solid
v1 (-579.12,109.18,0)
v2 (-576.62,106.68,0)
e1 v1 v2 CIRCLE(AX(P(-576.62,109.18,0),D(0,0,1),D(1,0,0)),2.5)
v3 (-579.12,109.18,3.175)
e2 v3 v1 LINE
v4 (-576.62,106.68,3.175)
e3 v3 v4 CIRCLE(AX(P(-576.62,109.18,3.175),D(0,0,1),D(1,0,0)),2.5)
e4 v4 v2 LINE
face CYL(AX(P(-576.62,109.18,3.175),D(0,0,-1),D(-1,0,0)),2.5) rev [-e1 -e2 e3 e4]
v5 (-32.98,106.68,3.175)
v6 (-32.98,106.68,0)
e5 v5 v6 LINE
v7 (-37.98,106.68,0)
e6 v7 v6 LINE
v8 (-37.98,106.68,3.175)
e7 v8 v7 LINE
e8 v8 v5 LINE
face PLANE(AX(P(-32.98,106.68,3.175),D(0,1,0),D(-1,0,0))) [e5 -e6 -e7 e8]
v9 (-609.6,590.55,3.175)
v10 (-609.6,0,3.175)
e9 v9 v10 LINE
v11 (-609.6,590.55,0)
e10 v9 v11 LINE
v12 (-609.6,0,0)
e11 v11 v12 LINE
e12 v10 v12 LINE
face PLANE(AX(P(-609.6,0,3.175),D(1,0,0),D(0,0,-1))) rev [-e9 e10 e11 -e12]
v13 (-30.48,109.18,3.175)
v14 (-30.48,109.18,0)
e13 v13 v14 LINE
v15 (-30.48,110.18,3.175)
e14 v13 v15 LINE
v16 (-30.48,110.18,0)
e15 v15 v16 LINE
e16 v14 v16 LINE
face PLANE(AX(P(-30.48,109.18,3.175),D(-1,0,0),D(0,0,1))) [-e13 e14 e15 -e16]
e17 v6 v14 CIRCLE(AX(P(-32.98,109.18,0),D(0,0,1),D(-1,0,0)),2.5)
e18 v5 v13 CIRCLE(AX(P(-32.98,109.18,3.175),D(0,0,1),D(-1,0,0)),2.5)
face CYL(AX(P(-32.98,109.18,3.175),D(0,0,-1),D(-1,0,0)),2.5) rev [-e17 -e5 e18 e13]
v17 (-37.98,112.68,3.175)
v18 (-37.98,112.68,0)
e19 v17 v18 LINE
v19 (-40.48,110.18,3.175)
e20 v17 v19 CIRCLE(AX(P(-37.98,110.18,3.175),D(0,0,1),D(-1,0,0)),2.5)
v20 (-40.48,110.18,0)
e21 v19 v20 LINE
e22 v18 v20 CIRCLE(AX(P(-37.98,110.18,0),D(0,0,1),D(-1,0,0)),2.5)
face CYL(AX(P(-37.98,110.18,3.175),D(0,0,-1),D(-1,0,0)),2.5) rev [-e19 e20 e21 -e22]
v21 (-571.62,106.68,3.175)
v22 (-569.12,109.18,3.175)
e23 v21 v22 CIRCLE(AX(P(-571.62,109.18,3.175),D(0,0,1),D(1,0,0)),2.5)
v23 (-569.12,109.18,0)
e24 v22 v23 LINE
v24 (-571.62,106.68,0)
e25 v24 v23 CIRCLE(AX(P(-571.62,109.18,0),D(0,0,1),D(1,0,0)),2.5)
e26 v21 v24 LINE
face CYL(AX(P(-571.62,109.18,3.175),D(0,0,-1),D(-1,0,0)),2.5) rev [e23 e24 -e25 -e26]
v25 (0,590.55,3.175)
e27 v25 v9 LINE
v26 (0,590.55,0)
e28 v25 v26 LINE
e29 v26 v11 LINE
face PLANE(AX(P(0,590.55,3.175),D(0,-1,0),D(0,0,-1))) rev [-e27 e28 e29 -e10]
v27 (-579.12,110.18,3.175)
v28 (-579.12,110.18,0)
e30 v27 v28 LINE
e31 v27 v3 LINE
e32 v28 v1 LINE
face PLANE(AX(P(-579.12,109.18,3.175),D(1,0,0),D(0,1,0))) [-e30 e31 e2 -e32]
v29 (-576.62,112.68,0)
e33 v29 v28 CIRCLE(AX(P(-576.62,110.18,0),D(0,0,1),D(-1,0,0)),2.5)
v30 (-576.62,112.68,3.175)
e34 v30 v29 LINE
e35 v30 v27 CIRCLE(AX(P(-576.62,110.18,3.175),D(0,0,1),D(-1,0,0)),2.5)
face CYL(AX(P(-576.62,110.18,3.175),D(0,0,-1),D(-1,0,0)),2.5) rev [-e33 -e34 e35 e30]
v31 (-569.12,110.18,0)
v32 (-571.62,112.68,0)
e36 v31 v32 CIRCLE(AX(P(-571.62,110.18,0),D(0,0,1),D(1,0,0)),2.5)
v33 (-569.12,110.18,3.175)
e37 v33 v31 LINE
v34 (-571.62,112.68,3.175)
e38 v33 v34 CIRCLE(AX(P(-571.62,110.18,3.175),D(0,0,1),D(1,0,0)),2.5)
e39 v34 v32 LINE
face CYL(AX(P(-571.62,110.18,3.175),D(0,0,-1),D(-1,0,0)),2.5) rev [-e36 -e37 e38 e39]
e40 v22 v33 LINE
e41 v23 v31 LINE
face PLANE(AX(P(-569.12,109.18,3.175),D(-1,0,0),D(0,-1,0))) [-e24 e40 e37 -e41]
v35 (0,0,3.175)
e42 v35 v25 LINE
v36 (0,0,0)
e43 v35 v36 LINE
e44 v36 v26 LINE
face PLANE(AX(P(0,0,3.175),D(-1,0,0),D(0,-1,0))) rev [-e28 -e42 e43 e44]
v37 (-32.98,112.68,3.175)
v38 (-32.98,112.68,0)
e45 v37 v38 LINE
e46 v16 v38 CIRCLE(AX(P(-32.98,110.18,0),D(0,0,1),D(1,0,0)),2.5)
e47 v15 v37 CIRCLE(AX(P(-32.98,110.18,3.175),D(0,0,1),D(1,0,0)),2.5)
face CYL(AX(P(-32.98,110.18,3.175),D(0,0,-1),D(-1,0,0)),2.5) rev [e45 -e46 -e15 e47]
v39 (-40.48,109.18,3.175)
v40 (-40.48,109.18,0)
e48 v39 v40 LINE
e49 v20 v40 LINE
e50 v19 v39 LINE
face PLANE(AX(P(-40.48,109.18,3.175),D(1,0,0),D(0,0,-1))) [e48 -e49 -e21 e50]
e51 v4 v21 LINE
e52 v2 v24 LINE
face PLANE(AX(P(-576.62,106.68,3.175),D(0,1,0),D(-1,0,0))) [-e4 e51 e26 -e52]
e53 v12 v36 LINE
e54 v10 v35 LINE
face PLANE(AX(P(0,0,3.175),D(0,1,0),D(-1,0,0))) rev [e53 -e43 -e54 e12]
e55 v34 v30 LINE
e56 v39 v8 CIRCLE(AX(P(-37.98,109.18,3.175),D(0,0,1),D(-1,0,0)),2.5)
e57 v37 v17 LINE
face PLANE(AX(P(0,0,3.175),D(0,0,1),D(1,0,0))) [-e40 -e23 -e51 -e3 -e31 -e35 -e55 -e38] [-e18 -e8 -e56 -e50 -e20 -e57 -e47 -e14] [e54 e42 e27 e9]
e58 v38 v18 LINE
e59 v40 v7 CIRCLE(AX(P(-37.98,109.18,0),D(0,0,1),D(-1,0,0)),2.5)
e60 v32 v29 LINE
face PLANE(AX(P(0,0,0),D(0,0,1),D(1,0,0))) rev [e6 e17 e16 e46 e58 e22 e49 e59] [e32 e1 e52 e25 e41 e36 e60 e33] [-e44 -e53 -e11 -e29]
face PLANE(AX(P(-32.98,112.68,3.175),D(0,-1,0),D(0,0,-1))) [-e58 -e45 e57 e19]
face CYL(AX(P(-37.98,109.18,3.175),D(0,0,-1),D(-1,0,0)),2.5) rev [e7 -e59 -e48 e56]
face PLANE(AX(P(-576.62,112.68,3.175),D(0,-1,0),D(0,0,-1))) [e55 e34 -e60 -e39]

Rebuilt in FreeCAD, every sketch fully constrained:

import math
import FreeCAD as App
import Part
import Sketcher
from FreeCAD import Vector
Q = App.Units.Quantity


def add_polygon(sketch, points):
    """Adds a closed chain of lines whose ends are joined by coincident constraints."""
    first, n = sketch.GeometryCount, len(points)
    for a, b in zip(points, points[1:] + points[:1]):
        sketch.addGeometry(Part.LineSegment(App.Vector(*a, 0), App.Vector(*b, 0)), False)
    for i in range(n):
        sketch.addConstraint(Sketcher.Constraint("Coincident", first + i, 2, first + (i + 1) % n, 1))

doc = App.newDocument("Part")
body = doc.addObject("PartDesign::Body", "Body")

# Sketch on XY plane
sketch1 = body.newObject("Sketcher::SketchObject", "Sketch")
sketch1.AttachmentSupport = (doc.getObject("XY_Plane"), [""])
sketch1.MapMode = "FlatFace"
add_polygon(sketch1, [(-609.6, 590.55), (-609.6, 0), (0, 0), (0, 590.55)])  # lines 0-3
sketch1.addGeometry(Part.ArcOfCircle(Part.Circle(Vector(-576.62, 109.18, 0), Vector(0, 0, 1), 2.5), math.radians(180), math.radians(270)), False)  # 4
sketch1.addGeometry(Part.LineSegment(Vector(-579.12, 109.18, 0), Vector(-579.12, 110.18, 0)), False)  # 5
sketch1.addGeometry(Part.ArcOfCircle(Part.Circle(Vector(-576.62, 110.18, 0), Vector(0, 0, 1), 2.5), math.radians(90), math.radians(180)), False)  # 6
sketch1.addGeometry(Part.LineSegment(Vector(-576.62, 112.68, 0), Vector(-571.62, 112.68, 0)), False)  # 7
sketch1.addGeometry(Part.ArcOfCircle(Part.Circle(Vector(-571.62, 110.18, 0), Vector(0, 0, 1), 2.5), math.radians(0), math.radians(90)), False)  # 8
sketch1.addGeometry(Part.LineSegment(Vector(-569.12, 110.18, 0), Vector(-569.12, 109.18, 0)), False)  # 9
sketch1.addGeometry(Part.ArcOfCircle(Part.Circle(Vector(-571.62, 109.18, 0), Vector(0, 0, 1), 2.5), math.radians(-90), math.radians(0)), False)  # 10
sketch1.addGeometry(Part.LineSegment(Vector(-571.62, 106.68, 0), Vector(-576.62, 106.68, 0)), False)  # 11
sketch1.addGeometry(Part.ArcOfCircle(Part.Circle(Vector(-32.98, 109.18, 0), Vector(0, 0, 1), 2.5), math.radians(-90), math.radians(0)), False)  # 12
sketch1.addGeometry(Part.LineSegment(Vector(-32.98, 106.68, 0), Vector(-37.98, 106.68, 0)), False)  # 13
sketch1.addGeometry(Part.ArcOfCircle(Part.Circle(Vector(-37.98, 109.18, 0), Vector(0, 0, 1), 2.5), math.radians(180), math.radians(270)), False)  # 14
sketch1.addGeometry(Part.LineSegment(Vector(-40.48, 109.18, 0), Vector(-40.48, 110.18, 0)), False)  # 15
sketch1.addGeometry(Part.ArcOfCircle(Part.Circle(Vector(-37.98, 110.18, 0), Vector(0, 0, 1), 2.5), math.radians(90), math.radians(180)), False)  # 16
sketch1.addGeometry(Part.LineSegment(Vector(-37.98, 112.68, 0), Vector(-32.98, 112.68, 0)), False)  # 17
sketch1.addGeometry(Part.ArcOfCircle(Part.Circle(Vector(-32.98, 110.18, 0), Vector(0, 0, 1), 2.5), math.radians(0), math.radians(90)), False)  # 18
sketch1.addGeometry(Part.LineSegment(Vector(-30.48, 110.18, 0), Vector(-30.48, 109.18, 0)), False)  # 19
sketch1.addConstraint([
    Sketcher.Constraint("Tangent", 4, 1, 5, 1),
    Sketcher.Constraint("Tangent", 5, 2, 6, 2),
    Sketcher.Constraint("Tangent", 6, 1, 7, 1),
    Sketcher.Constraint("Tangent", 7, 2, 8, 2),
    Sketcher.Constraint("Tangent", 8, 1, 9, 1),
    Sketcher.Constraint("Tangent", 9, 2, 10, 2),
    Sketcher.Constraint("Tangent", 10, 1, 11, 1),
    Sketcher.Constraint("Tangent", 11, 2, 4, 2),
    Sketcher.Constraint("Tangent", 12, 1, 13, 1),
    Sketcher.Constraint("Tangent", 13, 2, 14, 2),
    Sketcher.Constraint("Tangent", 14, 1, 15, 1),
    Sketcher.Constraint("Tangent", 15, 2, 16, 2),
    Sketcher.Constraint("Tangent", 16, 1, 17, 1),
    Sketcher.Constraint("Tangent", 17, 2, 18, 2),
    Sketcher.Constraint("Tangent", 18, 1, 19, 1),
    Sketcher.Constraint("Tangent", 19, 2, 12, 2),
    Sketcher.Constraint("Vertical", 0),
    Sketcher.Constraint("Horizontal", 1),
    Sketcher.Constraint("Vertical", 2),
    Sketcher.Constraint("Horizontal", 3),
    Sketcher.Constraint("Vertical", 5),
    Sketcher.Constraint("Horizontal", 7),
    Sketcher.Constraint("Vertical", 9),
    Sketcher.Constraint("Horizontal", 11),
    Sketcher.Constraint("Horizontal", 13),
    Sketcher.Constraint("Vertical", 15),
    Sketcher.Constraint("Horizontal", 17),
    Sketcher.Constraint("Vertical", 19),
    Sketcher.Constraint("Coincident", 1, 2, -1, 1),
    Sketcher.Constraint("Equal", 4, 6),
    Sketcher.Constraint("Equal", 6, 8),
    Sketcher.Constraint("Equal", 8, 10),
    Sketcher.Constraint("Equal", 10, 12),
    Sketcher.Constraint("Equal", 12, 14),
    Sketcher.Constraint("Equal", 14, 16),
    Sketcher.Constraint("Equal", 16, 18),
    Sketcher.Constraint("Horizontal", 10, 3, 12, 3),
    Sketcher.Constraint("Horizontal", 8, 3, 16, 3),
    Sketcher.Constraint("Equal", 11, 13),
    Sketcher.Constraint("DistanceX", 1, 1, 1, 2, Q("24 in")),
    Sketcher.Constraint("DistanceY", 0, 2, 0, 1, Q("23.25 in")),
    Sketcher.Constraint("DistanceX", 4, 1, -1, 1, Q("22.8 in")),
    Sketcher.Constraint("DistanceY", -1, 1, 10, 1, Q("4.2 in")),
    Sketcher.Constraint("DistanceX", 18, 1, -1, 1, Q("1.2 in")),
    Sketcher.Constraint("Radius", 4, 2.5),
    Sketcher.Constraint("DistanceX", 7, 1, 7, 2, 5.0),
    Sketcher.Constraint("DistanceY", 5, 1, 5, 2, 1.0),
])
pad1 = body.newObject("PartDesign::Pad", "Pad")
pad1.Profile = sketch1
pad1.Length = Q("0.125 in")

doc.recompute()
